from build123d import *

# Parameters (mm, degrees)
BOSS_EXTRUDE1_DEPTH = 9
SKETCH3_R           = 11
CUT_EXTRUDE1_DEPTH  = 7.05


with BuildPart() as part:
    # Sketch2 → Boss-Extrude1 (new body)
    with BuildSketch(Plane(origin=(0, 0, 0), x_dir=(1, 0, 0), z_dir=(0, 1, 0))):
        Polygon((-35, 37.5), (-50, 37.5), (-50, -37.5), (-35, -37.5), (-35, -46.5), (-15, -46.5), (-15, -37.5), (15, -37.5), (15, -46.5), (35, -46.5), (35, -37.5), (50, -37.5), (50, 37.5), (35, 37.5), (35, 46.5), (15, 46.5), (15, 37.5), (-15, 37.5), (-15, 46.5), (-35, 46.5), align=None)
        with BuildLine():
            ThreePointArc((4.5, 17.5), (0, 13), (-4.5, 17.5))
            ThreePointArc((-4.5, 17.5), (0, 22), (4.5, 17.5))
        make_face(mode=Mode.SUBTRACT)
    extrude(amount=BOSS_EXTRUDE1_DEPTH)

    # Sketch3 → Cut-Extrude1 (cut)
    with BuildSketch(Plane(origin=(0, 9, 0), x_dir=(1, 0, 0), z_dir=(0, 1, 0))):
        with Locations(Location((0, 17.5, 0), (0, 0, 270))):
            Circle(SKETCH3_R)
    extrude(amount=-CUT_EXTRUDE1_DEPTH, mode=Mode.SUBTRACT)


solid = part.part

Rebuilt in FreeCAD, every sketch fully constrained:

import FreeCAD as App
import Part
import Sketcher
from FreeCAD import Vector
Q = App.Units.Quantity


def add_polygon(sketch, points):
    """Adds a closed chain of lines whose ends are joined by coincident constraints."""
    first, n = sketch.GeometryCount, len(points)
    for a, b in zip(points, points[1:] + points[:1]):
        sketch.addGeometry(Part.LineSegment(App.Vector(*a, 0), App.Vector(*b, 0)), False)
    for i in range(n):
        sketch.addConstraint(Sketcher.Constraint("Coincident", first + i, 2, first + (i + 1) % n, 1))

doc = App.newDocument("Part")
body = doc.addObject("PartDesign::Body", "Body")

# Sketch on XZ plane
sketch1 = body.newObject("Sketcher::SketchObject", "Sketch")
sketch1.AttachmentSupport = (doc.getObject("XZ_Plane"), [""])
sketch1.MapMode = "FlatFace"
add_polygon(sketch1, [(-35, -37.5), (-50, -37.5), (-50, 37.5), (-35, 37.5), (-35, 46.5), (-15, 46.5), (-15, 37.5), (15, 37.5), (15, 46.5), (35, 46.5), (35, 37.5), (50, 37.5), (50, -37.5), (35, -37.5), (35, -46.5), (15, -46.5), (15, -37.5), (-15, -37.5), (-15, -46.5), (-35, -46.5)])  # lines 0-19
sketch1.addGeometry(Part.Circle(Vector(0, -17.5, 0), Vector(0, 0, 1), 4.5), False)  # 20
sketch1.addConstraint([
    Sketcher.Constraint("Horizontal", 0),
    Sketcher.Constraint("Vertical", 1),
    Sketcher.Constraint("Horizontal", 2),
    Sketcher.Constraint("Vertical", 3),
    Sketcher.Constraint("Horizontal", 4),
    Sketcher.Constraint("Vertical", 5),
    Sketcher.Constraint("Horizontal", 6),
    Sketcher.Constraint("Vertical", 7),
    Sketcher.Constraint("Horizontal", 8),
    Sketcher.Constraint("Vertical", 9),
    Sketcher.Constraint("Horizontal", 10),
    Sketcher.Constraint("Vertical", 11),
    Sketcher.Constraint("Horizontal", 12),
    Sketcher.Constraint("Vertical", 13),
    Sketcher.Constraint("Horizontal", 14),
    Sketcher.Constraint("Vertical", 15),
    Sketcher.Constraint("Horizontal", 16),
    Sketcher.Constraint("Vertical", 17),
    Sketcher.Constraint("Horizontal", 18),
    Sketcher.Constraint("Vertical", 19),
    Sketcher.Constraint("Symmetric", 0, 2, 10, 2, -1, 1),
    Sketcher.Constraint("Symmetric", 2, 2, 12, 2, -1, 1),
    Sketcher.Constraint("Symmetric", 4, 2, 14, 2, -1, 1),
    Sketcher.Constraint("Symmetric", 6, 2, 16, 2, -1, 1),
    Sketcher.Constraint("Symmetric", 8, 2, 18, 2, -1, 1),
    Sketcher.Constraint("Symmetric", 4, 2, 7, 2, -2),
    Sketcher.Constraint("Symmetric", 2, 2, 9, 2, -2),
    Sketcher.Constraint("PointOnObject", 20, 3, -2),
    Sketcher.Constraint("Horizontal", 2, 2, 5, 2),
    Sketcher.Constraint("Diameter", 20, Q("9 mm")),
    Sketcher.Constraint("DistanceX", 0, 2, 0, 1, Q("15 mm")),
    Sketcher.Constraint("DistanceX", 4, 1, 4, 2, Q("20 mm")),
    Sketcher.Constraint("DistanceX", 6, 1, 6, 2, Q("30 mm")),
    Sketcher.Constraint("DistanceY", 1, 1, 1, 2, Q("75 mm")),
    Sketcher.Constraint("DistanceY", 3, 1, 3, 2, Q("9 mm")),
    Sketcher.Constraint("DistanceY", 0, 2, 20, 3, Q("20 mm")),
])
pad1 = body.newObject("PartDesign::Pad", "Pad")
pad1.Profile = sketch1
pad1.Length = 9
pad1.Reversed = True

# Sketch on XZ plane
sketch2 = body.newObject("Sketcher::SketchObject", "Sketch001")
sketch2.AttachmentSupport = (doc.getObject("XZ_Plane"), [""])
sketch2.MapMode = "FlatFace"
sketch2.AttachmentOffset = App.Placement(Vector(0, 0, -9), App.Rotation())
sketch2.addGeometry(Part.Circle(Vector(0, -17.5, 0), Vector(0, 0, 1), 11), False)
sketch2.addConstraint([
    Sketcher.Constraint("PointOnObject", 0, 3, -2),
    Sketcher.Constraint("Diameter", 0, Q("22 mm")),
    Sketcher.Constraint("DistanceY", 0, 3, -1, 1, Q("17.5 mm")),
])
pocket1 = body.newObject("PartDesign::Pocket", "Pocket")
pocket1.Profile = sketch2
pocket1.Length = 7.05
pocket1.Reversed = True

doc.recompute()
